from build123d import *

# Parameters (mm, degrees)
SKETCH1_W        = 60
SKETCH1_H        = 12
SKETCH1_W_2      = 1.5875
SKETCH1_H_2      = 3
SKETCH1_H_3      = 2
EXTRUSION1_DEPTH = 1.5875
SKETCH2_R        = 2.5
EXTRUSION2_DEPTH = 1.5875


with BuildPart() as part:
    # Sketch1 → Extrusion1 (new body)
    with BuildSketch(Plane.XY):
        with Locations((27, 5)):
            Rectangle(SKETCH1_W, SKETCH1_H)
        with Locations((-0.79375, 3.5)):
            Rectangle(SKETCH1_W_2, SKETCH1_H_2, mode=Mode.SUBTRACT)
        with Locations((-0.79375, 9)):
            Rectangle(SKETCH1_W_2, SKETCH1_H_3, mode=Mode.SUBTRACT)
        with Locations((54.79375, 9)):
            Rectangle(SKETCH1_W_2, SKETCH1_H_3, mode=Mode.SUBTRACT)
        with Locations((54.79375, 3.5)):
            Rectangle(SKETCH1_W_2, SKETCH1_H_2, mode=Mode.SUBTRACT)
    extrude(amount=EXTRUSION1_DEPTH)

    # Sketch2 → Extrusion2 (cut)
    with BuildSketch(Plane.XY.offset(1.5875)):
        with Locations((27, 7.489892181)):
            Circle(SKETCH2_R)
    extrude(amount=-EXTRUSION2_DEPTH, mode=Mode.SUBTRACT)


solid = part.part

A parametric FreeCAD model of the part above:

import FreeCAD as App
import Part
import Sketcher

V = App.Vector
Q = App.Units.Quantity

doc = App.newDocument("Part")
body = doc.addObject("PartDesign::Body", "Body")

# Sketch on XY plane
sketch1 = body.newObject("Sketcher::SketchObject", "Sketch")
sketch1.AttachmentSupport = (doc.getObject("XY_Plane"), [""])
sketch1.MapMode = "FlatFace"
sketch1.addGeometry(Part.LineSegment(V(-3, 11, 0), V(-3, -1, 0)), False)
sketch1.addGeometry(Part.LineSegment(V(-3, -1, 0), V(57, -1, 0)), False)
sketch1.addGeometry(Part.LineSegment(V(57, -1, 0), V(57, 11, 0)), False)
sketch1.addGeometry(Part.LineSegment(V(57, 11, 0), V(-3, 11, 0)), False)
sketch1.addGeometry(Part.LineSegment(V(0, 2, 0), V(-1.6, 2, 0)), False)
sketch1.addGeometry(Part.LineSegment(V(-1.6, 2, 0), V(-1.6, 5, 0)), False)
sketch1.addGeometry(Part.LineSegment(V(-1.6, 5, 0), V(0, 5, 0)), False)
sketch1.addGeometry(Part.LineSegment(V(0, 5, 0), V(0, 2, 0)), False)
sketch1.addGeometry(Part.LineSegment(V(55.6, 2, 0), V(54, 2, 0)), False)
sketch1.addGeometry(Part.LineSegment(V(54, 2, 0), V(54, 5, 0)), False)
sketch1.addGeometry(Part.LineSegment(V(54, 5, 0), V(55.6, 5, 0)), False)
sketch1.addGeometry(Part.LineSegment(V(55.6, 5, 0), V(55.6, 2, 0)), False)
sketch1.addGeometry(Part.LineSegment(V(0, 8, 0), V(-1.6, 8, 0)), False)
sketch1.addGeometry(Part.LineSegment(V(-1.6, 8, 0), V(-1.6, 10, 0)), False)
sketch1.addGeometry(Part.LineSegment(V(-1.6, 10, 0), V(0, 10, 0)), False)
sketch1.addGeometry(Part.LineSegment(V(0, 10, 0), V(0, 8, 0)), False)
sketch1.addGeometry(Part.LineSegment(V(55.6, 8, 0), V(54, 8, 0)), False)
sketch1.addGeometry(Part.LineSegment(V(54, 8, 0), V(54, 10, 0)), False)
sketch1.addGeometry(Part.LineSegment(V(54, 10, 0), V(55.6, 10, 0)), False)
sketch1.addGeometry(Part.LineSegment(V(55.6, 10, 0), V(55.6, 8, 0)), False)
sketch1.addConstraint(Sketcher.Constraint("Coincident", 0, 2, 1, 1))
sketch1.addConstraint(Sketcher.Constraint("Coincident", 1, 2, 2, 1))
sketch1.addConstraint(Sketcher.Constraint("Coincident", 2, 2, 3, 1))
sketch1.addConstraint(Sketcher.Constraint("Coincident", 3, 2, 0, 1))
sketch1.addConstraint(Sketcher.Constraint("Coincident", 4, 2, 5, 1))
sketch1.addConstraint(Sketcher.Constraint("Coincident", 5, 2, 6, 1))
sketch1.addConstraint(Sketcher.Constraint("Coincident", 6, 2, 7, 1))
sketch1.addConstraint(Sketcher.Constraint("Coincident", 7, 2, 4, 1))
sketch1.addConstraint(Sketcher.Constraint("Coincident", 8, 2, 9, 1))
sketch1.addConstraint(Sketcher.Constraint("Coincident", 9, 2, 10, 1))
sketch1.addConstraint(Sketcher.Constraint("Coincident", 10, 2, 11, 1))
sketch1.addConstraint(Sketcher.Constraint("Coincident", 11, 2, 8, 1))
sketch1.addConstraint(Sketcher.Constraint("Coincident", 12, 2, 13, 1))
sketch1.addConstraint(Sketcher.Constraint("Coincident", 13, 2, 14, 1))
sketch1.addConstraint(Sketcher.Constraint("Coincident", 14, 2, 15, 1))
sketch1.addConstraint(Sketcher.Constraint("Coincident", 15, 2, 12, 1))
sketch1.addConstraint(Sketcher.Constraint("Coincident", 16, 2, 17, 1))
sketch1.addConstraint(Sketcher.Constraint("Coincident", 17, 2, 18, 1))
sketch1.addConstraint(Sketcher.Constraint("Coincident", 18, 2, 19, 1))
sketch1.addConstraint(Sketcher.Constraint("Coincident", 19, 2, 16, 1))
sketch1.addConstraint(Sketcher.Constraint("Vertical", 0))
sketch1.addConstraint(Sketcher.Constraint("Horizontal", 1))
sketch1.addConstraint(Sketcher.Constraint("Vertical", 2))
sketch1.addConstraint(Sketcher.Constraint("Horizontal", 3))
sketch1.addConstraint(Sketcher.Constraint("Horizontal", 4))
sketch1.addConstraint(Sketcher.Constraint("Vertical", 5))
sketch1.addConstraint(Sketcher.Constraint("Horizontal", 6))
sketch1.addConstraint(Sketcher.Constraint("Vertical", 7))
sketch1.addConstraint(Sketcher.Constraint("Horizontal", 8))
sketch1.addConstraint(Sketcher.Constraint("Vertical", 9))
sketch1.addConstraint(Sketcher.Constraint("Horizontal", 10))
sketch1.addConstraint(Sketcher.Constraint("Vertical", 11))
sketch1.addConstraint(Sketcher.Constraint("Horizontal", 12))
sketch1.addConstraint(Sketcher.Constraint("Vertical", 13))
sketch1.addConstraint(Sketcher.Constraint("Horizontal", 14))
sketch1.addConstraint(Sketcher.Constraint("Vertical", 15))
sketch1.addConstraint(Sketcher.Constraint("Horizontal", 16))
sketch1.addConstraint(Sketcher.Constraint("Vertical", 17))
sketch1.addConstraint(Sketcher.Constraint("Horizontal", 18))
sketch1.addConstraint(Sketcher.Constraint("Vertical", 19))
sketch1.addConstraint(Sketcher.Constraint("PointOnObject", 6, 2, -2))
sketch1.addConstraint(Sketcher.Constraint("PointOnObject", 14, 2, -2))
sketch1.addConstraint(Sketcher.Constraint("Horizontal", 7, 2, 8, 2))
sketch1.addConstraint(Sketcher.Constraint("Horizontal", 6, 2, 9, 2))
sketch1.addConstraint(Sketcher.Constraint("Horizontal", 15, 2, 16, 2))
sketch1.addConstraint(Sketcher.Constraint("Horizontal", 14, 2, 17, 2))
sketch1.addConstraint(Sketcher.Constraint("Vertical", 5, 2, 12, 2))
sketch1.addConstraint(Sketcher.Constraint("Vertical", 9, 2, 16, 2))
sketch1.addConstraint(Sketcher.Constraint("Vertical", 11, 2, 18, 2))
sketch1.addConstraint(Sketcher.Constraint("Equal", 6, 8))
sketch1.addConstraint(Sketcher.Constraint("DistanceX", 1, 1, 1, 2, Q("60 mm")))
sketch1.addConstraint(Sketcher.Constraint("DistanceY", 0, 2, 0, 1, Q("12 mm")))
sketch1.addConstraint(Sketcher.Constraint("DistanceY", 5, 1, 5, 2, Q("3 mm")))
sketch1.addConstraint(Sketcher.Constraint("DistanceY", 13, 1, 13, 2, Q("2 mm")))
sketch1.addConstraint(Sketcher.Constraint("DistanceX", 0, 2, -1, 1, Q("3 mm")))
sketch1.addConstraint(Sketcher.Constraint("DistanceY", 0, 2, -1, 1, Q("1 mm")))
sketch1.addConstraint(Sketcher.Constraint("DistanceY", -1, 1, 4, 2, Q("2 mm")))
sketch1.addConstraint(Sketcher.Constraint("DistanceX", -1, 1, 8, 2, Q("54 mm")))
sketch1.addConstraint(Sketcher.Constraint("DistanceY", -1, 1, 12, 2, Q("8 mm")))
sketch1.addConstraint(Sketcher.Constraint("DistanceX", 4, 2, 4, 1, Q("1.5875 mm")))
pad1 = body.newObject("PartDesign::Pad", "Pad")
pad1.Profile = sketch1
pad1.Length = 1.5875

# Sketch on XY plane
sketch2 = body.newObject("Sketcher::SketchObject", "Sketch001")
sketch2.AttachmentSupport = (doc.getObject("XY_Plane"), [""])
sketch2.MapMode = "FlatFace"
sketch2.AttachmentOffset = App.Placement(V(0, 0, 1.5875), App.Rotation())
sketch2.addGeometry(Part.Circle(V(27, 7.5, 0), V(0, 0, 1), 2.5), False)
sketch2.addConstraint(Sketcher.Constraint("Diameter", 0, Q("5 mm")))
sketch2.addConstraint(Sketcher.Constraint("DistanceX", -1, 1, 0, 3, Q("27 mm")))
sketch2.addConstraint(Sketcher.Constraint("DistanceY", -1, 1, 0, 3, Q("7.489892 mm")))
pocket1 = body.newObject("PartDesign::Pocket", "Pocket")
pocket1.Profile = sketch2
pocket1.Length = 1.5875

doc.recompute()
